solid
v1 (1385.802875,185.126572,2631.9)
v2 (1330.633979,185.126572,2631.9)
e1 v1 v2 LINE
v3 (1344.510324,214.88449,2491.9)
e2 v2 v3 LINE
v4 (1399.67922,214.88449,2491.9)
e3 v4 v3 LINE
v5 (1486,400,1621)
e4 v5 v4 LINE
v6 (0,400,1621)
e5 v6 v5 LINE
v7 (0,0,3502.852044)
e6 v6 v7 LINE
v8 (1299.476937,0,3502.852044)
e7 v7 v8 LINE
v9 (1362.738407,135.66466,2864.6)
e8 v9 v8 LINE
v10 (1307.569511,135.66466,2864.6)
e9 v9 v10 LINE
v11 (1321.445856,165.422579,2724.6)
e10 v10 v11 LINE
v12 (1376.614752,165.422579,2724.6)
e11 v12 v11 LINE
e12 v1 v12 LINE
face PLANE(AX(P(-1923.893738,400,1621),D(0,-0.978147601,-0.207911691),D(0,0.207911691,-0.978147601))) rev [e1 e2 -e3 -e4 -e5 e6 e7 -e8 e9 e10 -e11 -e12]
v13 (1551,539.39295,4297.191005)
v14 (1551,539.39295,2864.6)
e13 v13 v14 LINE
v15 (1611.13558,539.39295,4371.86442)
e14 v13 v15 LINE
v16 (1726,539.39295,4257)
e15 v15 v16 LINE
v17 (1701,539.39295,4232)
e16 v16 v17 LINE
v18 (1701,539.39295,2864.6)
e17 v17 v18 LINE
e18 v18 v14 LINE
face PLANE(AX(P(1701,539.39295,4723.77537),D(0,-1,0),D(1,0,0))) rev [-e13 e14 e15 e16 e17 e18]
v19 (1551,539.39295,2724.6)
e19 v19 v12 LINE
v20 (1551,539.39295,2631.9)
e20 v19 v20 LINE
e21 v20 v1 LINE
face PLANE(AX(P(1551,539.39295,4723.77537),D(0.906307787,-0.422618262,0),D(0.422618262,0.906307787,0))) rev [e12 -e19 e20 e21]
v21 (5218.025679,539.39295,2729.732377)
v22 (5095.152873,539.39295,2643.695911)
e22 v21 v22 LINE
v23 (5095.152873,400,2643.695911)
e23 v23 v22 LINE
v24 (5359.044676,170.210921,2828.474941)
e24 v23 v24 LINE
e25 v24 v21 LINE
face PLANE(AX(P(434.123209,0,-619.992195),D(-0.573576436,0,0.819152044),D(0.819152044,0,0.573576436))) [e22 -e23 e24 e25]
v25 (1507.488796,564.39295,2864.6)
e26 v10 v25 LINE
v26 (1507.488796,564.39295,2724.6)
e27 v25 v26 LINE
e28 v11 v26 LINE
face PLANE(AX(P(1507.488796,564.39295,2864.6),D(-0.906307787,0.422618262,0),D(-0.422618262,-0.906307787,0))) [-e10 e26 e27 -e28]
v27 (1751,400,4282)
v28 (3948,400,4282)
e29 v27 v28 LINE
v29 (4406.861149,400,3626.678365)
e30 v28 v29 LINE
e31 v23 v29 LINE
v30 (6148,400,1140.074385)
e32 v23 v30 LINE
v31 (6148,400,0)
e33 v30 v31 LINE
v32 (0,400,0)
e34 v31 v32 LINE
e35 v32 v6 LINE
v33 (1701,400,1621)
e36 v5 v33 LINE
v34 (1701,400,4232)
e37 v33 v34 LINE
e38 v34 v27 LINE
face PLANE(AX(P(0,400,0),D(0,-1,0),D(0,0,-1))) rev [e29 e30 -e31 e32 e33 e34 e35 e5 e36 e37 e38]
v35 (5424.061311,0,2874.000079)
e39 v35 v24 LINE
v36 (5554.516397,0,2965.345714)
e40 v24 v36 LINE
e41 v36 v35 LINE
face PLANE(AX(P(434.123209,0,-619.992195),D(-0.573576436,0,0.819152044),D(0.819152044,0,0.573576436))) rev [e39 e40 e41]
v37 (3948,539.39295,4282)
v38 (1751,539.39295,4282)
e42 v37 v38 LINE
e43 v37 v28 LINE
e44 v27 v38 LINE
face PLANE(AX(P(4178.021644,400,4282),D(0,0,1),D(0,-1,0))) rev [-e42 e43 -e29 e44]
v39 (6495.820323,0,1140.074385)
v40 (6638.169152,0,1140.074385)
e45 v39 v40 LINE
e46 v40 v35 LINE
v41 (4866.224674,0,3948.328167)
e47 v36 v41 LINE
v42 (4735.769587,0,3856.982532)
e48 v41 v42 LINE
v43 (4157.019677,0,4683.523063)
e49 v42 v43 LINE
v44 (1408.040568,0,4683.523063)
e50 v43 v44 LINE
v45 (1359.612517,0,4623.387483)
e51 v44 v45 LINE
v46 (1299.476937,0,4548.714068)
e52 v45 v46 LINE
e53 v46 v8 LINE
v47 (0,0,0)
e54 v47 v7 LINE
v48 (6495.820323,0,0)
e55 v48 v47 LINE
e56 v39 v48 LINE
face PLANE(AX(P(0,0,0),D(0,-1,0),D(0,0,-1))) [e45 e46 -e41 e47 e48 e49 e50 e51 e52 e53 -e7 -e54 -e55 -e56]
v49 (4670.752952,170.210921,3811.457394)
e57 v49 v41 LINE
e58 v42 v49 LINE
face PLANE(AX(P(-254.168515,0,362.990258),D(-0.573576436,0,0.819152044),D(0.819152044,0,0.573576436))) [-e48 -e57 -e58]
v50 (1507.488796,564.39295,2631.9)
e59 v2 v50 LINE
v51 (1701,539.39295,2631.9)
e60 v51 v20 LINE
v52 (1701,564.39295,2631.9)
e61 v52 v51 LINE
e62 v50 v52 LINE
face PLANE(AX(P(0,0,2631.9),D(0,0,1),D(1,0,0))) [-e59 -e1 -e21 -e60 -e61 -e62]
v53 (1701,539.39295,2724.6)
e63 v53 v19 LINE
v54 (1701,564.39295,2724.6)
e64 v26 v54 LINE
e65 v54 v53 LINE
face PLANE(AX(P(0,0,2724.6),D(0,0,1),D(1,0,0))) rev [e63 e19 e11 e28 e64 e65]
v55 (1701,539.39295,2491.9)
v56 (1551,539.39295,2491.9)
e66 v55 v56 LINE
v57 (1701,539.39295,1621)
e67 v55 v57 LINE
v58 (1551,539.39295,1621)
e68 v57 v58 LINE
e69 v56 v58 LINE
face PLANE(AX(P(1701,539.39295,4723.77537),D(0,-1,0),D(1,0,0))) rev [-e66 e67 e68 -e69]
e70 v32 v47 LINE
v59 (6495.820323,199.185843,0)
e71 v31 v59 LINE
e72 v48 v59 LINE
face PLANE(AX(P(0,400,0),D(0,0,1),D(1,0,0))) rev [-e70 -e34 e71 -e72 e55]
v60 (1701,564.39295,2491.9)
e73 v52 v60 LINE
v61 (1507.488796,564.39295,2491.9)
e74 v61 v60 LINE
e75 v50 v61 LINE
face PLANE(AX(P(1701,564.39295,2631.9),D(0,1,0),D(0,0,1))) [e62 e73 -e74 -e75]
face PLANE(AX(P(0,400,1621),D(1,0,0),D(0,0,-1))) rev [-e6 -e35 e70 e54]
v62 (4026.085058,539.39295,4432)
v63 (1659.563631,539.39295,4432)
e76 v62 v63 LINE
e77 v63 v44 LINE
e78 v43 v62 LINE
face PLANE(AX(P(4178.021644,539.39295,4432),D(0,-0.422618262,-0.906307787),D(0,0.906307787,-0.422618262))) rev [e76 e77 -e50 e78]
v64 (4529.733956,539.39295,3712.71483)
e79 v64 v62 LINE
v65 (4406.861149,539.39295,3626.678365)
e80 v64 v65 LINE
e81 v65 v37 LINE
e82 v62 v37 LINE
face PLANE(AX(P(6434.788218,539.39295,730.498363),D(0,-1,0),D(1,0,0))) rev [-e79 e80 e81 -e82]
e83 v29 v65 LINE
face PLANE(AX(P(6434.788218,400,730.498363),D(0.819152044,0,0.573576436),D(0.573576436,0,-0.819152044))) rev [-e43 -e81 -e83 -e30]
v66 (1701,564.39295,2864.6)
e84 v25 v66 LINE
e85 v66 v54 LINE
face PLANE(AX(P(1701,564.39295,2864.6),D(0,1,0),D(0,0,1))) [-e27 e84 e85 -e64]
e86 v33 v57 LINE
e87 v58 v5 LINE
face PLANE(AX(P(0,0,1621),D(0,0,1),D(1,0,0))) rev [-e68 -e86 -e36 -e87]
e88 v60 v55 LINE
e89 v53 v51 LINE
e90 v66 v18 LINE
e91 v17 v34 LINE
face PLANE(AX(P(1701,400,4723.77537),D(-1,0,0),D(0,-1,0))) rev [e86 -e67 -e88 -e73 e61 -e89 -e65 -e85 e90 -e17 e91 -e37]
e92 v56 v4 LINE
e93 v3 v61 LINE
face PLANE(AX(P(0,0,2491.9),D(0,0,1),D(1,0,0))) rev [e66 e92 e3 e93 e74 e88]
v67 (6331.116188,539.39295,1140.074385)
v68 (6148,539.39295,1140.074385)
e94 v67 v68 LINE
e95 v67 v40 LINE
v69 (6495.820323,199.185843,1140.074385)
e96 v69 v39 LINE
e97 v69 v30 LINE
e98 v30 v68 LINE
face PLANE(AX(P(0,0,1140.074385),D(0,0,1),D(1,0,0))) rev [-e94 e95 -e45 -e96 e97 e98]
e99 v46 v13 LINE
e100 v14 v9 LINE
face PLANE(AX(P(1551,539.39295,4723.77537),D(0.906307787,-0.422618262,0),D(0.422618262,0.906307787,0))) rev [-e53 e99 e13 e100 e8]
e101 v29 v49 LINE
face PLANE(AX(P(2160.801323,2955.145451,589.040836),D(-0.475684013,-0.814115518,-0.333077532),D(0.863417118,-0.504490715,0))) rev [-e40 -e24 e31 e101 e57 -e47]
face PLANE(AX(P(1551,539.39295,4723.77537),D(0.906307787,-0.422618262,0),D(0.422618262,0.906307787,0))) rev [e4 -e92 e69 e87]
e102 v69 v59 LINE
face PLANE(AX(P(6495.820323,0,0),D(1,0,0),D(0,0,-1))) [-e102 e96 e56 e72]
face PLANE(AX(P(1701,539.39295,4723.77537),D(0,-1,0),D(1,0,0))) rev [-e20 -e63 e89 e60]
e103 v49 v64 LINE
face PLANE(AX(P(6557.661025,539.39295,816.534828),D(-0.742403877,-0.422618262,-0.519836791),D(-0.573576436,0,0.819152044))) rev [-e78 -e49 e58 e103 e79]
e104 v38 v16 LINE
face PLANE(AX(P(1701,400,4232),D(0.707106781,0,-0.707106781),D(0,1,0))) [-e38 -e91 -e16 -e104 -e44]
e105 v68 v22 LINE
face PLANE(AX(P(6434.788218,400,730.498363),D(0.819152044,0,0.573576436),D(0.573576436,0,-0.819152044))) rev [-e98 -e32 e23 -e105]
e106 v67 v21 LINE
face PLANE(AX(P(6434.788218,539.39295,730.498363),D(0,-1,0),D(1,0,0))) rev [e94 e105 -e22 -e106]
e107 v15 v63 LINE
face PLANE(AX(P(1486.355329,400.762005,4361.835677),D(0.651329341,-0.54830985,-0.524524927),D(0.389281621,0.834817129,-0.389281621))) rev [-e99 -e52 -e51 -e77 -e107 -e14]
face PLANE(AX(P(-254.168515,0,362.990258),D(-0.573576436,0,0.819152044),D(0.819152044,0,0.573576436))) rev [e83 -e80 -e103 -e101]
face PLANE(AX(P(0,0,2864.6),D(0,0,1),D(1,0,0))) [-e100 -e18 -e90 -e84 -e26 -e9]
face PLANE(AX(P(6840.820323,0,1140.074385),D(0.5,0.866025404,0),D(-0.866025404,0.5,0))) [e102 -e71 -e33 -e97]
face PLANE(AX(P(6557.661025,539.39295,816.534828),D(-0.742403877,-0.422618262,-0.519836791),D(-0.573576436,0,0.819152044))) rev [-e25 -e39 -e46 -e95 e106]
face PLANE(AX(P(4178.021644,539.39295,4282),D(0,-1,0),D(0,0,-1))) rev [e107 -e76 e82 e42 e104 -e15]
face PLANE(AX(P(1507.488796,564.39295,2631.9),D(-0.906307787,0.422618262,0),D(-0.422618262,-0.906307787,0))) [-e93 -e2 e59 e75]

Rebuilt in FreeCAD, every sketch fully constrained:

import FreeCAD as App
import Part
import Sketcher
Q = App.Units.Quantity


def edges_at(feature, points):
    """Names of the edges that pass closest to the given points."""
    edges = feature.Shape.Edges
    near = lambda p: min(range(len(edges)), key=lambda i: edges[i].distToShape(Part.Vertex(*p))[0])
    return sorted({f"Edge{near(p) + 1}" for p in points})


def add_polygon(sketch, points):
    """Adds a closed chain of lines whose ends are joined by coincident constraints."""
    first, n = sketch.GeometryCount, len(points)
    for a, b in zip(points, points[1:] + points[:1]):
        sketch.addGeometry(Part.LineSegment(App.Vector(*a, 0), App.Vector(*b, 0)), False)
    for i in range(n):
        sketch.addConstraint(Sketcher.Constraint("Coincident", first + i, 2, first + (i + 1) % n, 1))

doc = App.newDocument("Part")
body = doc.addObject("PartDesign::Body", "Body")

# Sketch on XZ plane
sketch1 = body.newObject("Sketcher::SketchObject", "Sketch")
sketch1.AttachmentSupport = (doc.getObject("XZ_Plane"), [""])
sketch1.MapMode = "FlatFace"
add_polygon(sketch1, [(6148, 0), (0, 0), (0, 1621), (1701, 1621), (1701, 4282), (3948, 4282), (6148, 1140.074385)])  # lines 0-6
sketch1.addConstraint([
    Sketcher.Constraint("Horizontal", 0),
    Sketcher.Constraint("Vertical", 1),
    Sketcher.Constraint("Horizontal", 2),
    Sketcher.Constraint("Vertical", 3),
    Sketcher.Constraint("Horizontal", 4),
    Sketcher.Constraint("Vertical", 6),
    Sketcher.Constraint("Coincident", 0, 2, -1, 1),
    Sketcher.Constraint("DistanceX", 0, 2, 0, 1, Q("6148 mm")),
    Sketcher.Constraint("DistanceX", 2, 1, 2, 2, Q("1701 mm")),
    Sketcher.Constraint("DistanceX", 4, 1, 4, 2, Q("2247 mm")),
    Sketcher.Constraint("DistanceY", 1, 1, 1, 2, Q("1621 mm")),
    Sketcher.Constraint("DistanceY", 3, 1, 3, 2, Q("2661 mm")),
    Sketcher.Constraint("Angle", 5, Q("-55 deg")),
])
pad1 = body.newObject("PartDesign::Pad", "Pad")
pad1.Profile = sketch1
pad1.Length = 400
pad1.Reversed = True

# Sketch on YZ plane
sketch2 = body.newObject("Sketcher::SketchObject", "Sketch001")
sketch2.AttachmentSupport = (doc.getObject("YZ_Plane"), [""])
sketch2.MapMode = "FlatFace"
sketch2.AttachmentOffset = App.Placement(App.Vector(0, 0, 1701), App.Rotation())
add_polygon(sketch2, [(0, 3502.852044), (400, 1621), (0, 1621)])  # lines 0-2
sketch2.addConstraint([
    Sketcher.Constraint("Horizontal", 1),
    Sketcher.Constraint("Vertical", 2),
    Sketcher.Constraint("PointOnObject", 1, 2, -2),
    Sketcher.Constraint("DistanceX", 1, 2, 1, 1, Q("400 mm")),
    Sketcher.Constraint("Angle", 0, Q("-78 deg")),
    Sketcher.Constraint("DistanceY", -1, 1, 0, 2, Q("1621 mm")),
])
pad2 = body.newObject("PartDesign::Pad", "Pad001")
pad2.Profile = sketch2
pad2.Length = 1701
pad2.Reversed = True

# Sketch on XY plane
sketch3 = body.newObject("Sketcher::SketchObject", "Sketch002")
sketch3.AttachmentSupport = (doc.getObject("XY_Plane"), [""])
sketch3.MapMode = "FlatFace"
add_polygon(sketch3, [(6148, 0), (6148, 400), (6840.820323, 0)])  # lines 0-2
sketch3.addConstraint([
    Sketcher.Constraint("Vertical", 0),
    Sketcher.Constraint("Horizontal", 2),
    Sketcher.Constraint("PointOnObject", 1, 2, -1),
    Sketcher.Constraint("DistanceY", 0, 1, 0, 2, Q("400 mm")),
    Sketcher.Constraint("Angle", 1, Q("-30 deg")),
    Sketcher.Constraint("DistanceX", -1, 1, 0, 2, Q("6148 mm")),
])
pad3 = body.newObject("PartDesign::Pad", "Pad002")
pad3.Profile = sketch3
pad3.Length = 1140.074385

# Sketch on XY plane
sketch4 = body.newObject("Sketcher::SketchObject", "Sketch003")
sketch4.AttachmentSupport = (doc.getObject("XY_Plane"), [""])
sketch4.MapMode = "FlatFace"
sketch4.AttachmentOffset = App.Placement(App.Vector(0, 0, 3282), App.Rotation())
add_polygon(sketch4, [(1701, 539.39295), (1551, 539.39295), (1299.476937, 0), (1701, 0)])  # lines 0-3
sketch4.addConstraint([
    Sketcher.Constraint("Horizontal", 0),
    Sketcher.Constraint("Horizontal", 2),
    Sketcher.Constraint("Vertical", 3),
    Sketcher.Constraint("PointOnObject", 1, 2, -1),
    Sketcher.Constraint("DistanceX", 0, 2, 0, 1, Q("150 mm")),
    Sketcher.Constraint("Angle", 1, Q("-115 deg")),
    Sketcher.Constraint("DistanceX", -1, 1, 0, 2, Q("1551 mm")),
    Sketcher.Constraint("DistanceY", 3, 1, 3, 2, Q("539.39295 mm")),
])

# Sketch on XZ plane
sketch5 = body.newObject("Sketcher::SketchObject", "Sketch004")
sketch5.AttachmentSupport = (doc.getObject("XZ_Plane"), [""])
sketch5.MapMode = "FlatFace"
sketch5.AttachmentOffset = App.Placement(App.Vector(0, 0, -400), App.Rotation())
sketch5.addGeometry([
    Part.LineSegment(App.Vector(1701, 1621, 0), App.Vector(1701, 4282, 0)),
    Part.LineSegment(App.Vector(1701, 4282, 0), App.Vector(3948, 4282, 0)),
    Part.LineSegment(App.Vector(3948, 4282, 0), App.Vector(6434.788218, 730.498363, 0)),
], False)
sketch5.addConstraint([
    Sketcher.Constraint("Coincident", 0, 2, 1, 1),
    Sketcher.Constraint("Coincident", 1, 2, 2, 1),
    Sketcher.Constraint("Vertical", 0),
    Sketcher.Constraint("Horizontal", 1),
    Sketcher.Constraint("DistanceX", 1, 1, 1, 2, Q("2247 mm")),
    Sketcher.Constraint("DistanceY", 0, 1, 0, 2, Q("2661 mm")),
    Sketcher.Constraint("Angle", 2, Q("-55 deg")),
    Sketcher.Constraint("DistanceX", -1, 1, 0, 1, Q("1701 mm")),
    Sketcher.Constraint("DistanceY", -1, 1, 0, 1, Q("1621 mm")),
    Sketcher.Constraint("Distance", 2, Q("4335.58295 mm")),
])
doc.recompute()

additivepipe = body.newObject("PartDesign::AdditivePipe", "AdditivePipe")
additivepipe.Profile = sketch4
additivepipe.Spine = (sketch5, ["Edge1", "Edge2", "Edge3"])
additivepipe.Transition = "Right corner"

# Sketch on XY plane
sketch6 = body.newObject("Sketcher::SketchObject", "Sketch005")
sketch6.AttachmentSupport = (doc.getObject("XY_Plane"), [""])
sketch6.MapMode = "FlatFace"
add_polygon(sketch6, [(6148, 400), (6148, 600), (6840.820323, 600), (6840.820323, 0)])  # lines 0-3
sketch6.addConstraint([
    Sketcher.Constraint("Vertical", 0),
    Sketcher.Constraint("Horizontal", 1),
    Sketcher.Constraint("Vertical", 2),
    Sketcher.Constraint("PointOnObject", 2, 2, -1),
    Sketcher.Constraint("DistanceY", 0, 1, 0, 2, Q("200 mm")),
    Sketcher.Constraint("DistanceY", 2, 2, 2, 1, Q("600 mm")),
    Sketcher.Constraint("Angle", 3, Q("150 deg")),
    Sketcher.Constraint("DistanceX", -1, 1, 0, 2, Q("6148 mm")),
])
pocket1 = body.newObject("PartDesign::Pocket", "Pocket")
pocket1.Profile = sketch6
pocket1.Length = 1140.074385
pocket1.Reversed = True
doc.recompute()

chamfer = body.newObject("PartDesign::Chamfer", "Chamfer")
chamfer.Base = (pocket1, edges_at(pocket1, [(1425.238, 269.696, 4557.762)]))
chamfer.ChamferType = "Two distances"
chamfer.Size = 100
chamfer.Size2 = 124.175098
doc.recompute()

chamfer2 = body.newObject("PartDesign::Chamfer", "Chamfer001")
chamfer2.Base = (chamfer, edges_at(chamfer, [(1701, 469.696, 4282)]))
chamfer2.Size = 50

# Sketch on XY plane
sketch7 = body.newObject("Sketcher::SketchObject", "Sketch006")
sketch7.AttachmentSupport = (doc.getObject("XY_Plane"), [""])
sketch7.MapMode = "FlatFace"
sketch7.AttachmentOffset = App.Placement(App.Vector(0, 0, 2491.9), App.Rotation())
add_polygon(sketch7, [(1701, 564.39295), (1701, 0), (1244.308041, 0), (1507.488796, 564.39295)])  # lines 0-3
sketch7.addConstraint([
    Sketcher.Constraint("Vertical", 0),
    Sketcher.Constraint("Horizontal", 1),
    Sketcher.Constraint("Horizontal", 3),
    Sketcher.Constraint("PointOnObject", 0, 2, -1),
    Sketcher.Constraint("Angle", 2, Q("65 deg")),
    Sketcher.Constraint("DistanceX", -1, 1, 0, 2, Q("1701 mm")),
    Sketcher.Constraint("DistanceX", 1, 2, 1, 1, Q("456.691959 mm")),
    Sketcher.Constraint("DistanceY", 0, 2, 0, 1, Q("564.39295 mm")),
])
pad4 = body.newObject("PartDesign::Pad", "Pad003")
pad4.Profile = sketch7
pad4.Length = 140
doc.recompute()

linearpattern = body.newObject("PartDesign::LinearPattern", "LinearPattern")
linearpattern.Originals = [pad4]
linearpattern.Direction = (doc.getObject("Z_Axis"), [""])
linearpattern.Mode = "offset"
linearpattern.Offset = 232.7
linearpattern.Occurrences = 2
body.Tip = linearpattern

# Sketch on an angled plane
sketch8 = body.newObject("Sketcher::SketchObject", "Sketch007")
sketch8.Placement = App.Placement(App.Vector(4406.861149, 539.39295, 3626.678365), App.Rotation(App.Vector(0.819152044, 0, 0.573576436), App.Vector(0, 0.999999999, 0), App.Vector(-0.573576436, 0, 0.819152044), "ZXY"))
add_polygon(sketch8, [(0, -139.39295), (0, -539.392949), (560.779317, -539.392949)])  # lines 0-2
sketch8.addConstraint([
    Sketcher.Constraint("Vertical", 0),
    Sketcher.Constraint("Horizontal", 1),
    Sketcher.Constraint("PointOnObject", 0, 2, -2),
    Sketcher.Constraint("DistanceY", 0, 2, 0, 1, Q("399.999999 mm")),
    Sketcher.Constraint("Angle", 2, Q("144.5 deg")),
    Sketcher.Constraint("DistanceY", 0, 2, -1, 1, Q("539.392949 mm")),
])
pad5 = body.newObject("PartDesign::Pad", "Pad004")
pad5.Profile = sketch8
pad5.Length = 1200
pad5.Reversed = True

# Sketch on an angled plane
sketch9 = body.newObject("Sketcher::SketchObject", "Sketch008")
sketch9.Placement = App.Placement(App.Vector(4406.861149, 539.39295, 3626.678365), App.Rotation(App.Vector(0.819152044, 0, 0.573576436), App.Vector(0, 0.999999999, 0), App.Vector(-0.573576436, 0, 0.819152044), "ZXY"))
add_polygon(sketch9, [(560.779317, -539.392949), (0, 260.60705), (0, -139.39295)])  # lines 0-2
sketch9.addConstraint([
    Sketcher.Constraint("Vertical", 1),
    Sketcher.Constraint("PointOnObject", 0, 2, -2),
    Sketcher.Constraint("DistanceY", 1, 2, 1, 1, Q("399.999999 mm")),
    Sketcher.Constraint("Angle", 2, Q("-35.5 deg")),
    Sketcher.Constraint("DistanceY", 2, 2, 1, 2, Q("399.999999 mm")),
    Sketcher.Constraint("DistanceY", -1, 1, 0, 2, Q("260.60705 mm")),
])
pocket2 = body.newObject("PartDesign::Pocket", "Pocket001")
pocket2.Profile = sketch9
pocket2.Length = 1200

# Sketch on YZ plane
sketch10 = body.newObject("Sketcher::SketchObject", "Sketch009")
sketch10.AttachmentSupport = (doc.getObject("YZ_Plane"), [""])
sketch10.MapMode = "FlatFace"
sketch10.AttachmentOffset = App.Placement(App.Vector(0, 0, 6495.820323), App.Rotation())
add_polygon(sketch10, [(400, 1140.074385), (0, 1140.074385), (0, 0), (400, 0)])  # lines 0-3
sketch10.addConstraint([
    Sketcher.Constraint("Horizontal", 0),
    Sketcher.Constraint("Vertical", 1),
    Sketcher.Constraint("Horizontal", 2),
    Sketcher.Constraint("Vertical", 3),
    Sketcher.Constraint("Coincident", 1, 2, -1, 1),
    Sketcher.Constraint("DistanceX", 0, 2, 0, 1, Q("400 mm")),
    Sketcher.Constraint("DistanceY", 1, 2, 1, 1, Q("1140.074385 mm")),
])
pocket3 = body.newObject("PartDesign::Pocket", "Pocket002")
pocket3.Profile = sketch10
pocket3.Length = 345
pocket3.Reversed = True

doc.recompute()
